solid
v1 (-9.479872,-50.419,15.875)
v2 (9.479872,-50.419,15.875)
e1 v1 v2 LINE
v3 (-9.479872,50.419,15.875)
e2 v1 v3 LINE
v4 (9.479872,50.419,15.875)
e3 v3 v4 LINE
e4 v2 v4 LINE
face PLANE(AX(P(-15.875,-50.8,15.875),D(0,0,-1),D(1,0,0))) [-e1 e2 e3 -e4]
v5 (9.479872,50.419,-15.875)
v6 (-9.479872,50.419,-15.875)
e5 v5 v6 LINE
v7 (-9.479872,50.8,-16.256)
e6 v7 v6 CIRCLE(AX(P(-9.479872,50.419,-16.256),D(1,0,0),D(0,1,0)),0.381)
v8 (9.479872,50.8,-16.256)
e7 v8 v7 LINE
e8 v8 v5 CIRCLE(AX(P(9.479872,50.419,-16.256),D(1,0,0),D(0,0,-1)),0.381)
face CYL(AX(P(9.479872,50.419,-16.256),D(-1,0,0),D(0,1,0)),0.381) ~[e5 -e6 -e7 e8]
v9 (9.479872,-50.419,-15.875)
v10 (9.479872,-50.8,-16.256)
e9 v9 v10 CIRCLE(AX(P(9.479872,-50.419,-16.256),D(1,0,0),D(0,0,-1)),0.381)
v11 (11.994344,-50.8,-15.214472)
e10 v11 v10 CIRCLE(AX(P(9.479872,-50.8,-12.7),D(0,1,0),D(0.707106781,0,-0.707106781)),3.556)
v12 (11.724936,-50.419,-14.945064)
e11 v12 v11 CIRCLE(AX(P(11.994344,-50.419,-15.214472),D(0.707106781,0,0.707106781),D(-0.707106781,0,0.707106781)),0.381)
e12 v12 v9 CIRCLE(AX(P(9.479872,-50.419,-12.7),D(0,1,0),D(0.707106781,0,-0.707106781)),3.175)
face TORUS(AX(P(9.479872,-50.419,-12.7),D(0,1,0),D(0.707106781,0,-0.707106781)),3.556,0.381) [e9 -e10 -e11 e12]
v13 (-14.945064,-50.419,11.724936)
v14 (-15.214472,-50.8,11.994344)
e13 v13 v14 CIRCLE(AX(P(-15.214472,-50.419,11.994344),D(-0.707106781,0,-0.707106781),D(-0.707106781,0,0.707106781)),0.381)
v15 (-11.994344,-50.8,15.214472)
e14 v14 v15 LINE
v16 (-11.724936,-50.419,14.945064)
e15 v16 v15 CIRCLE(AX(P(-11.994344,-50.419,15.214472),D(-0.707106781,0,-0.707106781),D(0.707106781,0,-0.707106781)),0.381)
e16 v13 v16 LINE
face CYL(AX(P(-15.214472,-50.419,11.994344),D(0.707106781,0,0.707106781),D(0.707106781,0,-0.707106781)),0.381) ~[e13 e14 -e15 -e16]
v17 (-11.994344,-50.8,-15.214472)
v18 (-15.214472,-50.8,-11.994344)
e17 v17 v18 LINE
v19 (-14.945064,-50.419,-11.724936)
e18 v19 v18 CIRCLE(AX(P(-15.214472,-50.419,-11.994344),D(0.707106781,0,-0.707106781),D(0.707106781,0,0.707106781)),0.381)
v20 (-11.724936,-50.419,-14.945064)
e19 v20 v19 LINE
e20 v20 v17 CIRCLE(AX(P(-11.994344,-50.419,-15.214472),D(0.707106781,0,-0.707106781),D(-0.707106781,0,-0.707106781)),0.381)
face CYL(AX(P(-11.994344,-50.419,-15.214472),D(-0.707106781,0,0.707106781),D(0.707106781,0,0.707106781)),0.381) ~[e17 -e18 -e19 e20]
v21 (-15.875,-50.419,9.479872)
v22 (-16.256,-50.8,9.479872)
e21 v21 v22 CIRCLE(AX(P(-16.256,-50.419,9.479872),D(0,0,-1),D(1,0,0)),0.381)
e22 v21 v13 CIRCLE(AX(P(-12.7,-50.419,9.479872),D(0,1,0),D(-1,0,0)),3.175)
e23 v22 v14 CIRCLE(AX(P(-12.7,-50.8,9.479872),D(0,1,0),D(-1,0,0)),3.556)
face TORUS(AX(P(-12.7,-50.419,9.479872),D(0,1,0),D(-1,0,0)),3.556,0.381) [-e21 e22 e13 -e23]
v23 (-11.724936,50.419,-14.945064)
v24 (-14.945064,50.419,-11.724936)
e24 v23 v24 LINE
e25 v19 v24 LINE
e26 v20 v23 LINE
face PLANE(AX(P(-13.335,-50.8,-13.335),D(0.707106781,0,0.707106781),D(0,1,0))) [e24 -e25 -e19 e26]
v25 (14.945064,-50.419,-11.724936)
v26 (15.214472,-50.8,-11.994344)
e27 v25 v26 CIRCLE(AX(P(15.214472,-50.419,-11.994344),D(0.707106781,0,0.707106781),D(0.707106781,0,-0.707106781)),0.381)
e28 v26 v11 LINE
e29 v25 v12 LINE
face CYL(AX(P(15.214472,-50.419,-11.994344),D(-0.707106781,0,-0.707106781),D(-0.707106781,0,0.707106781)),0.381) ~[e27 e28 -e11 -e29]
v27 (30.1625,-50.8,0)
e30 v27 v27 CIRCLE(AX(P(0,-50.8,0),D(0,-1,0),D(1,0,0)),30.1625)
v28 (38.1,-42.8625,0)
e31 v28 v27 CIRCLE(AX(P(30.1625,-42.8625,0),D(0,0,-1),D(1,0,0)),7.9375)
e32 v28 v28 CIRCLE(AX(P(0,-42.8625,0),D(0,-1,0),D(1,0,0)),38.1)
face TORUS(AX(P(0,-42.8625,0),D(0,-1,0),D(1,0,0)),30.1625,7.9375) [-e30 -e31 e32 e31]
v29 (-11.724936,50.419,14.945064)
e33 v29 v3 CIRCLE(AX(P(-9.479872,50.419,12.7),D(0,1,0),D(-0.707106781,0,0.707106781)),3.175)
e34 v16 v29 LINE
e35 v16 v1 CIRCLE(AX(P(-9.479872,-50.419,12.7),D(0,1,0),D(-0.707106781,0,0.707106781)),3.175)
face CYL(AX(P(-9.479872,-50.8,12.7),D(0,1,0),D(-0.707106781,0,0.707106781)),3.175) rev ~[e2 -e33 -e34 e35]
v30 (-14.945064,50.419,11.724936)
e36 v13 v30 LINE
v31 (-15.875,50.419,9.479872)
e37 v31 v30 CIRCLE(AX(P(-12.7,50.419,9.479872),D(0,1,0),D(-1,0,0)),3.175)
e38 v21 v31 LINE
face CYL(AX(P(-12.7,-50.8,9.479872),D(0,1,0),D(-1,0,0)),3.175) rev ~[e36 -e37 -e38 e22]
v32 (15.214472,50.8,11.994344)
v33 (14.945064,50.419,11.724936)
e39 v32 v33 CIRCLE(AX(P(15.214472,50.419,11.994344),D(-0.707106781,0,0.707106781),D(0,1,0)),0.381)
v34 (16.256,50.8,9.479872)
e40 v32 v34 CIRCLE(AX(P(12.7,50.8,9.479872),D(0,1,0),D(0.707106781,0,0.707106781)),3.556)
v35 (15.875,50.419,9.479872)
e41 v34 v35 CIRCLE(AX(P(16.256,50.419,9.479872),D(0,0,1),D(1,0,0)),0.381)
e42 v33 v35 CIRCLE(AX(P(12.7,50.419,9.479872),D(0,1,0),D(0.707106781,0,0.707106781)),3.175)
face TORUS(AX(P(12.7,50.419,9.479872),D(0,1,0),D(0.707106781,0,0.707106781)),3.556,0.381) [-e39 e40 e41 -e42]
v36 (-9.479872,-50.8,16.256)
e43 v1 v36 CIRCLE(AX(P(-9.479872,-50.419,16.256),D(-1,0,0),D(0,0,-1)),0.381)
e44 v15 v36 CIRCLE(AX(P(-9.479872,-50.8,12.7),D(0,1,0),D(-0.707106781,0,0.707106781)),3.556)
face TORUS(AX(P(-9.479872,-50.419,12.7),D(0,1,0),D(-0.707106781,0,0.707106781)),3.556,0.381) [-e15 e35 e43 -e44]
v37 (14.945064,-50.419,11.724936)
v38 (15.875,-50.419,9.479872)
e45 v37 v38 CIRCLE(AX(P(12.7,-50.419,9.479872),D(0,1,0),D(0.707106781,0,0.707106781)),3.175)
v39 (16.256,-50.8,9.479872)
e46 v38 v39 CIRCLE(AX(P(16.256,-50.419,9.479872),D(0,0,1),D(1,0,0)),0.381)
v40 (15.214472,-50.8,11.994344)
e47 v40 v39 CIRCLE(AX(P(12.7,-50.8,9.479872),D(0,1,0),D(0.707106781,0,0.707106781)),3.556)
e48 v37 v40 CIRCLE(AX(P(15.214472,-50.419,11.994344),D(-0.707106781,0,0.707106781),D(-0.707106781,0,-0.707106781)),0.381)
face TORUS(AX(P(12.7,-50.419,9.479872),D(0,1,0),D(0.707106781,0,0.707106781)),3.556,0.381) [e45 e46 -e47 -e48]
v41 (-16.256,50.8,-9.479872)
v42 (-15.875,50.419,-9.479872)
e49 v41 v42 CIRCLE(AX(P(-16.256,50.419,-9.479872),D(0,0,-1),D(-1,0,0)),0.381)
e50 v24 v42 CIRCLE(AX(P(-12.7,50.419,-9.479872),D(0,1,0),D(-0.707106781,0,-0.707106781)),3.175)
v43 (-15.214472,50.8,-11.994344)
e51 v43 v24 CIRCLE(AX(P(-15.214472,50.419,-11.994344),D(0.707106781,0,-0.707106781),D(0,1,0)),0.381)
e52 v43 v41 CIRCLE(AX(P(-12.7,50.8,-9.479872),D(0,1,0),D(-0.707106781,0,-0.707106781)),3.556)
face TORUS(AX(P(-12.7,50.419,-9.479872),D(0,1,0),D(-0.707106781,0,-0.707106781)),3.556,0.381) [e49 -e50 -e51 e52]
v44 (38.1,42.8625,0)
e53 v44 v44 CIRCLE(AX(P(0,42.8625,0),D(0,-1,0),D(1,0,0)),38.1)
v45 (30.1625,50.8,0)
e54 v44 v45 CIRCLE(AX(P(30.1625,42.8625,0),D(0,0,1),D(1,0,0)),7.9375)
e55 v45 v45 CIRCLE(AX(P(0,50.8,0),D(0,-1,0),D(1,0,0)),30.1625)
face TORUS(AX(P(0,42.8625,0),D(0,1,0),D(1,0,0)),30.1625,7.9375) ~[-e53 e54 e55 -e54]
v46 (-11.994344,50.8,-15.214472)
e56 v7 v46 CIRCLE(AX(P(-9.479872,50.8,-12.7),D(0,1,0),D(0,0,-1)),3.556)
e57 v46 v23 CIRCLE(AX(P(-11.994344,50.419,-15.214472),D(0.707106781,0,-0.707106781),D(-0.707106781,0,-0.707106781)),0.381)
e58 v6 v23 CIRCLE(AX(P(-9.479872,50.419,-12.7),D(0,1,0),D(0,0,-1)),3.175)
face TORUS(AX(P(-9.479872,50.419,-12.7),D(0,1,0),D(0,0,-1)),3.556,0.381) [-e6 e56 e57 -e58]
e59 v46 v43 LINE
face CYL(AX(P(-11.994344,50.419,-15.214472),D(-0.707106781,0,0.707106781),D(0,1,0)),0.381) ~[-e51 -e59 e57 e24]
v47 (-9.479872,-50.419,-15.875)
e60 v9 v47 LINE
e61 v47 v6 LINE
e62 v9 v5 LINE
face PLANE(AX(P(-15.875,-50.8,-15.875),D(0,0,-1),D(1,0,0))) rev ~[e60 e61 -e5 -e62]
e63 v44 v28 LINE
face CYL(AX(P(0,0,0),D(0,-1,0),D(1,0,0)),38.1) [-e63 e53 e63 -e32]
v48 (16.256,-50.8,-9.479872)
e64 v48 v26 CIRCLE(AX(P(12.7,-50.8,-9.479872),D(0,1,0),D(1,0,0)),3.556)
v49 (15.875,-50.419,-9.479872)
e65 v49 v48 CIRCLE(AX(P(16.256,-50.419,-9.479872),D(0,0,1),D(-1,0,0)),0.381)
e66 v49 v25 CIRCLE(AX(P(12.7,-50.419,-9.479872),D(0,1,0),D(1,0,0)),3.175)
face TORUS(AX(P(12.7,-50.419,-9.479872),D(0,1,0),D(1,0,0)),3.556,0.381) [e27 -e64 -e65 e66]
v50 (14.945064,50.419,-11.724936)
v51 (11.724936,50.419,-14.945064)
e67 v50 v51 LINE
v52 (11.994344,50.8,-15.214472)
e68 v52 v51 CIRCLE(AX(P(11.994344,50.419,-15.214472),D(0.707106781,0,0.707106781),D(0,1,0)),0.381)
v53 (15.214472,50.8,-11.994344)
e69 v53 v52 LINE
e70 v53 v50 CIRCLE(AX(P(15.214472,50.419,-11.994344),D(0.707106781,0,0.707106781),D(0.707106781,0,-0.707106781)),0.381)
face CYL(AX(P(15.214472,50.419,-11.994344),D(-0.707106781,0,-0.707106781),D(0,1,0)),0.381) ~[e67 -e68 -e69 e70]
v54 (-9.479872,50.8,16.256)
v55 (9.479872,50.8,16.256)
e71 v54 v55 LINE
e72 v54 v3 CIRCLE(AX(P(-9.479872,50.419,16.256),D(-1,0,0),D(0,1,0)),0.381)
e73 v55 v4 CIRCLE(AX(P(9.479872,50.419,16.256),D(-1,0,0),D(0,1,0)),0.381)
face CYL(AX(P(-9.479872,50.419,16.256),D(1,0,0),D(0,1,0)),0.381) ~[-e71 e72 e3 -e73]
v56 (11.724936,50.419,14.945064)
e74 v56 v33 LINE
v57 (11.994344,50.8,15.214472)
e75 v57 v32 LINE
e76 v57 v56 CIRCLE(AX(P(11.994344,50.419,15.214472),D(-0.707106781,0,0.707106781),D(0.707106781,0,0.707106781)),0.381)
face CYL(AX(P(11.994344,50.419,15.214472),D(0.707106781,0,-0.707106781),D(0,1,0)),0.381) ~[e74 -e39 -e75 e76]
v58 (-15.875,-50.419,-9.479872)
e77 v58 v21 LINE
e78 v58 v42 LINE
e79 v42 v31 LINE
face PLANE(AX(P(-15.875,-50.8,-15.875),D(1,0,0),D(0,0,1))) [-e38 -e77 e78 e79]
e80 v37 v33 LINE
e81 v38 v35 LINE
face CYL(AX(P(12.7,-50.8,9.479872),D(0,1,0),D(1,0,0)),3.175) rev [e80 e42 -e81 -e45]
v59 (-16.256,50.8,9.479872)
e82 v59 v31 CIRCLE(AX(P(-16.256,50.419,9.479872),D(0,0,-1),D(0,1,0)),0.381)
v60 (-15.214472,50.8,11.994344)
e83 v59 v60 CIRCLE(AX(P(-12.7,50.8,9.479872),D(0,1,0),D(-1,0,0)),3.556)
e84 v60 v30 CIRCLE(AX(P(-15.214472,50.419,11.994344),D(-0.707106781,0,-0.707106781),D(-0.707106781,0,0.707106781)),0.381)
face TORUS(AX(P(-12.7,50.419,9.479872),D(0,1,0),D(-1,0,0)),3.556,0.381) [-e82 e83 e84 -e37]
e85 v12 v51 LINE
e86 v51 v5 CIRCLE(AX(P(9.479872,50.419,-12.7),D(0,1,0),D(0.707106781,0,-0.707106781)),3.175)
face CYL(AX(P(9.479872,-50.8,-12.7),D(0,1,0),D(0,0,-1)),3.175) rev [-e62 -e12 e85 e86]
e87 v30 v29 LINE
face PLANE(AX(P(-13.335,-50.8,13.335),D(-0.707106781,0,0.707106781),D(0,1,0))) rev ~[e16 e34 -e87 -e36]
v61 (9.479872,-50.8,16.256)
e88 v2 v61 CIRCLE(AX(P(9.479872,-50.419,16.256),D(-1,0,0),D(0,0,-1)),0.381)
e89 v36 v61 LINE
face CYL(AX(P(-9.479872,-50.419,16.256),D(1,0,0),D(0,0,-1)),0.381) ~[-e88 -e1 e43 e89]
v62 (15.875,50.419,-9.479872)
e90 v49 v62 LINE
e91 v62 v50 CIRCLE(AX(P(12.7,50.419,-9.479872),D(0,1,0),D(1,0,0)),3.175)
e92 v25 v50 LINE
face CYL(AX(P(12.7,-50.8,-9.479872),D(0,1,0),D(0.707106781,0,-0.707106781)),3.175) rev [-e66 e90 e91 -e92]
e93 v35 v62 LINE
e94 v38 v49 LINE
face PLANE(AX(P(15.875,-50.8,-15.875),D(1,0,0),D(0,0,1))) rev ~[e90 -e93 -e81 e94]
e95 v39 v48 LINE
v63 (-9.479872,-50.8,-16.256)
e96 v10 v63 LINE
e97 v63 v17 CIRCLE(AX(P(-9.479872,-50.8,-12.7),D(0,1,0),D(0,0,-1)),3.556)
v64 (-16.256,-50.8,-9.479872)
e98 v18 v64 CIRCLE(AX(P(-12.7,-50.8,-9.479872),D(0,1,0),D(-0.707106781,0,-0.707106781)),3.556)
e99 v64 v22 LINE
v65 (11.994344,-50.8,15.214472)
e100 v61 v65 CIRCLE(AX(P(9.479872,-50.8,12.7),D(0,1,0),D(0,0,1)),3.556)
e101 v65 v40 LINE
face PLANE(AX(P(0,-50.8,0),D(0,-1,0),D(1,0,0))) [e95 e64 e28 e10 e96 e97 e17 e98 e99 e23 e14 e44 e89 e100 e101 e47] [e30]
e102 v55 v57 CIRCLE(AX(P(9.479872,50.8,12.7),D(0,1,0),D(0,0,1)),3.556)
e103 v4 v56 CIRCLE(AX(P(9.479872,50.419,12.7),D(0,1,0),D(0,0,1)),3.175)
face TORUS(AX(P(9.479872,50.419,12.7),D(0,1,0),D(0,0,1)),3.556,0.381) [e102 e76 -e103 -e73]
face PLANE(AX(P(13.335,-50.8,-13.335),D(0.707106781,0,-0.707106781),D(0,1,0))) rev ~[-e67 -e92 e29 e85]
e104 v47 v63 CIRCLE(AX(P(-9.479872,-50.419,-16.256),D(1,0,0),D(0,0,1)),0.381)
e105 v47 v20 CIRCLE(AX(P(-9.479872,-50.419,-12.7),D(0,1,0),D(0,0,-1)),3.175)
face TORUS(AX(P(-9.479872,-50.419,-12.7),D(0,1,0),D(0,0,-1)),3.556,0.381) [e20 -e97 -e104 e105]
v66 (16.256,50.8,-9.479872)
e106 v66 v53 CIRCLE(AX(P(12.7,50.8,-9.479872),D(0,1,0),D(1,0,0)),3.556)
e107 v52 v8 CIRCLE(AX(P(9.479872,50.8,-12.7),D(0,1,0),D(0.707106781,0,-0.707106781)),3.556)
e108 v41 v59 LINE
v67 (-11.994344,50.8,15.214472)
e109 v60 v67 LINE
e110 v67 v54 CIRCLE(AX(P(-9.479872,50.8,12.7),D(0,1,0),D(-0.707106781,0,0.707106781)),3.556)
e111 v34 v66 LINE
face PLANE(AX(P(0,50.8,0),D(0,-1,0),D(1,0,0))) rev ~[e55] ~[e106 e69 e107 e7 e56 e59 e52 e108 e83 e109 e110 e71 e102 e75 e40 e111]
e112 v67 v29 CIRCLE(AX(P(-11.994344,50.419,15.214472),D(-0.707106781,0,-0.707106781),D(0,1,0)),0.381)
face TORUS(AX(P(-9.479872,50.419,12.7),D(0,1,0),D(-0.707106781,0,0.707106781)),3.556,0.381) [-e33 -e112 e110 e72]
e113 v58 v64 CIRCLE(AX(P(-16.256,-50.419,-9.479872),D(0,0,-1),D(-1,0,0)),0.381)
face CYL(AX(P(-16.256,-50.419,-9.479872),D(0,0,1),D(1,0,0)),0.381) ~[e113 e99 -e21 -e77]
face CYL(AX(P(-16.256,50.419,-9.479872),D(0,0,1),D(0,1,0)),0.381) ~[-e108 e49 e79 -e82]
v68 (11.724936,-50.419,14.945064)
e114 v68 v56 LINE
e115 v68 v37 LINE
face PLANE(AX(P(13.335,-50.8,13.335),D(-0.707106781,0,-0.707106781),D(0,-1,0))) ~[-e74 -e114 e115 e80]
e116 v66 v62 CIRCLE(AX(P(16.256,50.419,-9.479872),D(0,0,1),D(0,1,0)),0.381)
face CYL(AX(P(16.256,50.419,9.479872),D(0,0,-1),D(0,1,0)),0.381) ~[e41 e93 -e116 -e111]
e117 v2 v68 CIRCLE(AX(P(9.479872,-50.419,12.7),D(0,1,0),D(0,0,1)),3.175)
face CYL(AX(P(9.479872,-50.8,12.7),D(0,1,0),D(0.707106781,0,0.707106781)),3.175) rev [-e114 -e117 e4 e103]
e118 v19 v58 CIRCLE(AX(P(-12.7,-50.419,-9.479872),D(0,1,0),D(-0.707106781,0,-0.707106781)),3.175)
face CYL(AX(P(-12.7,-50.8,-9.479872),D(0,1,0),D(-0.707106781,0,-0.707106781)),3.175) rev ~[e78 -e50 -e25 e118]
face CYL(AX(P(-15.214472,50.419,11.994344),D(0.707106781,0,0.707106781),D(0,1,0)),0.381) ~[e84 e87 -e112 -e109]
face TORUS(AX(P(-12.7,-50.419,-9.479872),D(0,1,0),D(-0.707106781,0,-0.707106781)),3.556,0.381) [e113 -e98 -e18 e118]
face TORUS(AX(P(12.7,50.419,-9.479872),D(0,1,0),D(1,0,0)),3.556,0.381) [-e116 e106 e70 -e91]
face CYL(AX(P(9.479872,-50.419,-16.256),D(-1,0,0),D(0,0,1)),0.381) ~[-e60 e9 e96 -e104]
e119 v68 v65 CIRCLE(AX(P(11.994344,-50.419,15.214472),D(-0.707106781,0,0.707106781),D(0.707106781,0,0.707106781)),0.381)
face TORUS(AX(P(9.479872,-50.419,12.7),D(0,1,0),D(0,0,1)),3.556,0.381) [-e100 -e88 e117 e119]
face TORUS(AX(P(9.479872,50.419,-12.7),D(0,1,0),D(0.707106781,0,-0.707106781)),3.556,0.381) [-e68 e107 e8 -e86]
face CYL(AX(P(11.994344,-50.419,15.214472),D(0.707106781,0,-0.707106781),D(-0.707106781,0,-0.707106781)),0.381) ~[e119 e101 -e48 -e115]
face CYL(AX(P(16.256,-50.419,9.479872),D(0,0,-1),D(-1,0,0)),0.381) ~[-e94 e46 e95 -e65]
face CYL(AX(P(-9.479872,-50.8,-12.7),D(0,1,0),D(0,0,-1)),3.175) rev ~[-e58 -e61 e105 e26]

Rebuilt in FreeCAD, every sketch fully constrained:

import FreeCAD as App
import Part
import Sketcher
Q = App.Units.Quantity


def edges_at(feature, points):
    """Names of the edges that pass closest to the given points."""
    edges = feature.Shape.Edges
    near = lambda p: min(range(len(edges)), key=lambda i: edges[i].distToShape(Part.Vertex(*p))[0])
    return sorted({f"Edge{near(p) + 1}" for p in points})

doc = App.newDocument("Part")
body = doc.addObject("PartDesign::Body", "Body")

sketch1 = body.newObject("Sketcher::SketchObject", "Sketch")
sketch1.AttachmentSupport = (doc.getObject("XZ_Plane"), [""])
sketch1.MapMode = "FlatFace"
sketch1.addGeometry(Part.Circle(App.Vector(0, 0, 0), App.Vector(0, 0, 1), 38), False)
sketch1.addConstraint(Sketcher.Constraint("Coincident", 0, 3, -1, 1))
sketch1.addConstraint(Sketcher.Constraint("Diameter", 0, Q("3 in")))
pad1 = body.newObject("PartDesign::Pad", "Pad")
pad1.Profile = sketch1
pad1.Length = Q("4 in")
pad1.Midplane = True
doc.recompute()

fillet = body.newObject("PartDesign::Fillet", "Fillet")
fillet.Base = (pad1, edges_at(pad1, [(-38.1, -50.8, 0), (-38.1, 50.8, 0)]))
fillet.Radius = Q("0.3125 in")

sketch2 = body.newObject("Sketcher::SketchObject", "Sketch001")
sketch2.AttachmentSupport = (doc.getObject("XZ_Plane"), [""])
sketch2.MapMode = "FlatFace"
sketch2.AttachmentOffset = App.Placement(App.Vector(0, 0, 2 * 25.4), App.Rotation())
sketch2.addGeometry(Part.LineSegment(App.Vector(-16, 16, 0), App.Vector(-16, -16, 0)), False)
sketch2.addGeometry(Part.LineSegment(App.Vector(-16, -16, 0), App.Vector(16, -16, 0)), False)
sketch2.addGeometry(Part.LineSegment(App.Vector(16, -16, 0), App.Vector(16, 16, 0)), False)
sketch2.addGeometry(Part.LineSegment(App.Vector(16, 16, 0), App.Vector(-16, 16, 0)), False)
sketch2.addConstraint(Sketcher.Constraint("Coincident", 0, 2, 1, 1))
sketch2.addConstraint(Sketcher.Constraint("Coincident", 1, 2, 2, 1))
sketch2.addConstraint(Sketcher.Constraint("Coincident", 2, 2, 3, 1))
sketch2.addConstraint(Sketcher.Constraint("Coincident", 3, 2, 0, 1))
sketch2.addConstraint(Sketcher.Constraint("Vertical", 0))
sketch2.addConstraint(Sketcher.Constraint("Horizontal", 1))
sketch2.addConstraint(Sketcher.Constraint("Vertical", 2))
sketch2.addConstraint(Sketcher.Constraint("Horizontal", 3))
sketch2.addConstraint(Sketcher.Constraint("Symmetric", 0, 2, 2, 2, -1, 1))
sketch2.addConstraint(Sketcher.Constraint("Equal", 3, 0))
sketch2.addConstraint(Sketcher.Constraint("DistanceX", 1, 1, 1, 2, Q("1.25 in")))
pocket1 = body.newObject("PartDesign::Pocket", "Pocket")
pocket1.Profile = sketch2
pocket1.Type = "ThroughAll"
doc.recompute()

chamfer = body.newObject("PartDesign::Chamfer", "Chamfer")
chamfer.Base = (pocket1, edges_at(pocket1, [
    (-15.875, 0, 15.875),
    (15.875, 0, -15.875),
    (15.875, 0, 15.875),
    (-15.875, 0, -15.875),
]))
chamfer.Size = Q("0.2 in")
doc.recompute()

fillet2 = body.newObject("PartDesign::Fillet", "Fillet001")
fillet2.Base = (chamfer, edges_at(chamfer, [
    (-10.795, 0, -15.875),
    (-15.875, 0, -10.795),
    (-15.875, 0, 10.795),
    (-10.795, 0, 15.875),
    (10.795, 0, 15.875),
    (15.875, 0, 10.795),
    (15.875, 0, -10.795),
    (10.795, 0, -15.875),
]))
fillet2.Radius = Q("0.125 in")
doc.recompute()

fillet3 = body.newObject("PartDesign::Fillet", "Fillet002")
fillet3.Base = (fillet2, edges_at(fillet2, [(0, -50.8, 15.875), (0, 50.8, 15.875)]))
fillet3.Radius = Q("0.015 in")

doc.recompute()
